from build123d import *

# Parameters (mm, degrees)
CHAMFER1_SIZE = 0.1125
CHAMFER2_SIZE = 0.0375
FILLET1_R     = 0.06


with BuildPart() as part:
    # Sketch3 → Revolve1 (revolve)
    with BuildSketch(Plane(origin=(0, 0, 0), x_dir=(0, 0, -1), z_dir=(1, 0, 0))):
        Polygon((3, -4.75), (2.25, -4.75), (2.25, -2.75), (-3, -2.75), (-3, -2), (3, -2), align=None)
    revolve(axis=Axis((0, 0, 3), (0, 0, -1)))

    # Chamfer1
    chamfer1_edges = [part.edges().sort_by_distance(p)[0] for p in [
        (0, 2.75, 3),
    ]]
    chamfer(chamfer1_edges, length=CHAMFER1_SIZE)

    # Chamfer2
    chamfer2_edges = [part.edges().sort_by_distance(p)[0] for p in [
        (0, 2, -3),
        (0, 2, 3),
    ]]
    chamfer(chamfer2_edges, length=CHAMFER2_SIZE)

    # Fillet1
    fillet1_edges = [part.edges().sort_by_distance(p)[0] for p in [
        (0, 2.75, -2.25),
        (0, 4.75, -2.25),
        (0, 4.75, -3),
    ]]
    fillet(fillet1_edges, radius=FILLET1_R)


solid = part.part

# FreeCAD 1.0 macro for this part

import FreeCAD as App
import Part
import Sketcher


def edges_at(feature, points):
    """Names of the edges that pass closest to the given points."""
    edges = feature.Shape.Edges
    near = lambda p: min(range(len(edges)), key=lambda i: edges[i].distToShape(Part.Vertex(*p))[0])
    return sorted({f"Edge{near(p) + 1}" for p in points})


def add_polygon(sketch, points):
    """Adds a closed chain of lines whose ends are joined by coincident constraints."""
    first, n = sketch.GeometryCount, len(points)
    for a, b in zip(points, points[1:] + points[:1]):
        sketch.addGeometry(Part.LineSegment(App.Vector(*a, 0), App.Vector(*b, 0)), False)
    for i in range(n):
        sketch.addConstraint(Sketcher.Constraint("Coincident", first + i, 2, first + (i + 1) % n, 1))

doc = App.newDocument("Part")
params = doc.addObject("Spreadsheet::Sheet", "Params")
for row, (alias, value) in enumerate([
    ("sketch1_width", "2 mm"),
    ("sketch1_height", "6 mm"),
    ("sketch1_width2", "2.75 mm"),
    ("revolution_angle", "360 deg"),
    ("chamfer_size", "0.1125 mm"),
    ("chamfer2_size", "0.0375 mm"),
    ("fillet_radius", "0.06 mm"),
], start=1):
    params.set(f"A{row}", alias)
    params.set(f"B{row}", "=" + value)
    params.setAlias(f"B{row}", alias)

body = doc.addObject("PartDesign::Body", "Body")

sketch1 = doc.addObject("Sketcher::SketchObject", "Sketch")
body.addObject(sketch1)
sketch1.AttachmentSupport = (doc.YZ_Plane, [""])
sketch1.MapMode = "FlatFace"
add_polygon(sketch1, [(-4.8, -2.2), (-4.8, -3), (-2, -3), (-2, 3), (-2.8, 3), (-2.8, -2.2)])
sketch1.addConstraint([
    Sketcher.Constraint("Vertical", 0),
    Sketcher.Constraint("Horizontal", 1),
    Sketcher.Constraint("Vertical", 2),
    Sketcher.Constraint("Horizontal", 3),
    Sketcher.Constraint("Vertical", 4),
    Sketcher.Constraint("Horizontal", 5),
    Sketcher.Constraint("Equal", 3, 0),
    Sketcher.Constraint("DistanceX", 5, 2, 5, 1, 2.0),
    Sketcher.Constraint("DistanceY", 2, 1, 2, 2, 6.0),
    Sketcher.Constraint("DistanceY", 0, 2, -1, 1, 3.0),
    Sketcher.Constraint("DistanceX", 1, 2, -1, 1, 2.0),
    Sketcher.Constraint("DistanceX", 1, 1, 1, 2, 2.75),
])
sketch1.setExpression("Constraints[13]", "Params.sketch1_width")
sketch1.setExpression("Constraints[14]", "Params.sketch1_height")
sketch1.setExpression("Constraints[17]", "Params.sketch1_width2")
revolution = doc.addObject("PartDesign::Revolution", "Revolution")
body.addObject(revolution)
revolution.Profile = sketch1
revolution.ReferenceAxis = (sketch1, ["V_Axis"])
revolution.setExpression("Angle", "Params.revolution_angle")
doc.recompute()

chamfer = doc.addObject("PartDesign::Chamfer", "Chamfer")
body.addObject(chamfer)
chamfer.Base = (revolution, edges_at(revolution, [(0, 2.75, 3)]))
chamfer.setExpression("Size", "Params.chamfer_size")
doc.recompute()

chamfer2 = doc.addObject("PartDesign::Chamfer", "Chamfer001")
body.addObject(chamfer2)
chamfer2.Base = (chamfer, edges_at(chamfer, [(0, 2, -3), (0, 2, 3)]))
chamfer2.setExpression("Size", "Params.chamfer2_size")
doc.recompute()

fillet = doc.addObject("PartDesign::Fillet", "Fillet")
body.addObject(fillet)
fillet.Base = (chamfer2, edges_at(chamfer2, [(0, 2.75, -2.25), (0, 4.75, -2.25), (0, 4.75, -3)]))
fillet.setExpression("Radius", "Params.fillet_radius")

doc.recompute()
